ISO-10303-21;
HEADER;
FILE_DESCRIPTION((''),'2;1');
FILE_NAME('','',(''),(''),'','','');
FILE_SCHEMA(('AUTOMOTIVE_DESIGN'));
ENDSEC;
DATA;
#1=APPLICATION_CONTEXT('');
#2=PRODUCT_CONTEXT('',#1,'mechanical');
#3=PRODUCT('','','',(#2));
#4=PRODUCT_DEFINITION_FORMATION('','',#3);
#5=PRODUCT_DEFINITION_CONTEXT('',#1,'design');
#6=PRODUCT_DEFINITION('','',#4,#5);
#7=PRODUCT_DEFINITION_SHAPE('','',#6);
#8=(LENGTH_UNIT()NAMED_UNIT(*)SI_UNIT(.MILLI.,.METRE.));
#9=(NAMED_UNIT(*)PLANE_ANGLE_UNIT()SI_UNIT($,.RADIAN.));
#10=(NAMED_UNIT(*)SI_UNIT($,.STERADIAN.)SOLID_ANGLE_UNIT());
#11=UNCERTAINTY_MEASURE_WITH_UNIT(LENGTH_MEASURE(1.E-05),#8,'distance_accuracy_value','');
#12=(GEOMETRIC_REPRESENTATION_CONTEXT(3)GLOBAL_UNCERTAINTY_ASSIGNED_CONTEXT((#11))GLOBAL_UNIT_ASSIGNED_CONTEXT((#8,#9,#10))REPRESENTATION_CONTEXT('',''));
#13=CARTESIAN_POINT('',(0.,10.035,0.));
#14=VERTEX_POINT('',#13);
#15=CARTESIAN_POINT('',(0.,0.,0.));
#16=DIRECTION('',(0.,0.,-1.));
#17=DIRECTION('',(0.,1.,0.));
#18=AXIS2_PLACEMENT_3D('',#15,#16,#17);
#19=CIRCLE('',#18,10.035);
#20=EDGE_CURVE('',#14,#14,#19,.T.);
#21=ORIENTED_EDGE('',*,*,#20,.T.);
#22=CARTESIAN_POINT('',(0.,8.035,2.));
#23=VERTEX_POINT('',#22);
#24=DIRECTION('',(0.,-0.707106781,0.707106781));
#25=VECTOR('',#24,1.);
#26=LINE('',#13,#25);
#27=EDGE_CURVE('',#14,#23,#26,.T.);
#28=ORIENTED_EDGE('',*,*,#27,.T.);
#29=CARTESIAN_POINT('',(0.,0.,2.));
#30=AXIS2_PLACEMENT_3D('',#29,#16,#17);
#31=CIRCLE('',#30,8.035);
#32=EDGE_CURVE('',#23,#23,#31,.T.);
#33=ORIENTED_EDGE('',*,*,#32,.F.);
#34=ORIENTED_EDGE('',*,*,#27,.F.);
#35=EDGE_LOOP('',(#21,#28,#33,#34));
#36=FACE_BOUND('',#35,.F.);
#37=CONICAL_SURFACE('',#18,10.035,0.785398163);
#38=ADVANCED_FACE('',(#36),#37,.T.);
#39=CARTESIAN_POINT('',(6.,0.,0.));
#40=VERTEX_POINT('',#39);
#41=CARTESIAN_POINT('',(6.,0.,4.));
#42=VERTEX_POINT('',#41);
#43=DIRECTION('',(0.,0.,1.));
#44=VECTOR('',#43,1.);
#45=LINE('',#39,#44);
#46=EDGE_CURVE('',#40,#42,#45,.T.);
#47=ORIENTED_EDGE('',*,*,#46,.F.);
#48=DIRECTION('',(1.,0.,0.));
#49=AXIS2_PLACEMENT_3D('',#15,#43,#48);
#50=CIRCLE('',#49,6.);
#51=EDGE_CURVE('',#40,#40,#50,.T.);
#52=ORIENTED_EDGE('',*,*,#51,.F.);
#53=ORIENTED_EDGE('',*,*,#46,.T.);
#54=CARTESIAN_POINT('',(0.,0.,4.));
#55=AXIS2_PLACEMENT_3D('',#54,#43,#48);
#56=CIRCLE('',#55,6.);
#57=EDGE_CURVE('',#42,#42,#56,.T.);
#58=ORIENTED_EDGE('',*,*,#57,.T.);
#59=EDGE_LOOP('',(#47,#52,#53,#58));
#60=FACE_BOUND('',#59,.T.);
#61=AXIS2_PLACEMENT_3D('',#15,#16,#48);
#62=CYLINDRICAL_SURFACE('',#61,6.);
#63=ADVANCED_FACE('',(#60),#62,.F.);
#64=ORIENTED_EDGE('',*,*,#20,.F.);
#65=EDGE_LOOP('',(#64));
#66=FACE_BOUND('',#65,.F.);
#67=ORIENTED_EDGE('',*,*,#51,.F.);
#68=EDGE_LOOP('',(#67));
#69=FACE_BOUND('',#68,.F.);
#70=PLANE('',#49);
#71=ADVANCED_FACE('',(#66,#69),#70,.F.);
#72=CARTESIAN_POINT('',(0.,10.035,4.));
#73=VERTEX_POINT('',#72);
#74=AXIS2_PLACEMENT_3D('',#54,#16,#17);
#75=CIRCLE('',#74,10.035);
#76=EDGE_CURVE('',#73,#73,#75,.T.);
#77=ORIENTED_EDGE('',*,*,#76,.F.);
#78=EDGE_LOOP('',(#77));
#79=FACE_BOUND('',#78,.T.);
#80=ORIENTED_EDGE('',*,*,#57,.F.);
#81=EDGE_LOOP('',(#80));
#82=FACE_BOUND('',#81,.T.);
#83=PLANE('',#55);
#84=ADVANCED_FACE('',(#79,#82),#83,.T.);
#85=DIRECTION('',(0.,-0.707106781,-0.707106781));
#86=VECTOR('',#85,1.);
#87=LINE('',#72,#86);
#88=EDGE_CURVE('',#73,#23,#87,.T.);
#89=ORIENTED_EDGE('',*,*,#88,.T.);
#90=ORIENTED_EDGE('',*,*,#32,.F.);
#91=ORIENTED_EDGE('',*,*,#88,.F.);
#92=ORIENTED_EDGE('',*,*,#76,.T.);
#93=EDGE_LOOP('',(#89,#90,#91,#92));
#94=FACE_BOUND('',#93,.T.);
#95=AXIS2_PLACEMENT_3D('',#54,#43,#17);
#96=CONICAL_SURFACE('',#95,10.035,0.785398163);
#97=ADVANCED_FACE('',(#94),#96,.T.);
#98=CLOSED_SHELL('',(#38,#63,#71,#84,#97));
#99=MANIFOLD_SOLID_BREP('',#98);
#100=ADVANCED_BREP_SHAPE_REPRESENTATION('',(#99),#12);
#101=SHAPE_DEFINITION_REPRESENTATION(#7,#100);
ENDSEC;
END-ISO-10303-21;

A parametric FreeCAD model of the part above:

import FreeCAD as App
import Part
import Sketcher
from FreeCAD import Vector
Q = App.Units.Quantity

doc = App.newDocument("Part")
body = doc.addObject("PartDesign::Body", "Body")

sketch1 = body.newObject("Sketcher::SketchObject", "Sketch")
sketch1.AttachmentSupport = (doc.getObject("XY_Plane"), [""])
sketch1.MapMode = "FlatFace"
sketch1.addGeometry([
    Part.Circle(Vector(0, 0, 0), Vector(0, 0, 1), 8.035),
    Part.Circle(Vector(0, 0, 0), Vector(0, 0, 1), 6),
], False)
sketch1.addConstraint([
    Sketcher.Constraint("Coincident", 0, 3, -1, 1),
    Sketcher.Constraint("Coincident", 1, 3, -1, 1),
    Sketcher.Constraint("Diameter", 1, Q("12 mm")),
    Sketcher.Constraint("Diameter", 0, Q("16.07 mm")),
])
pad1 = body.newObject("PartDesign::Pad", "Pad")
pad1.Profile = sketch1
pad1.Length = 4

sketch2 = body.newObject("Sketcher::SketchObject", "Sketch001")
sketch2.AttachmentSupport = (doc.getObject("YZ_Plane"), [""])
sketch2.MapMode = "FlatFace"
sketch2.addGeometry([
    Part.LineSegment(Vector(8.035, 2, 0), Vector(8.035, 0, 0)),
    Part.LineSegment(Vector(8.035, 0, 0), Vector(10.035, 0, 0)),
    Part.LineSegment(Vector(10.035, 0, 0), Vector(8.035, 2, 0)),
    Part.LineSegment(Vector(8.035, 4, 0), Vector(8.035, 2, 0)),
    Part.LineSegment(Vector(8.035, 2, 0), Vector(10.035, 4, 0)),
    Part.LineSegment(Vector(10.035, 4, 0), Vector(8.035, 4, 0)),
], False)
sketch2.addConstraint([
    Sketcher.Constraint("Coincident", 0, 2, 1, 1),
    Sketcher.Constraint("Coincident", 1, 2, 2, 1),
    Sketcher.Constraint("Coincident", 2, 2, 0, 1),
    Sketcher.Constraint("Coincident", 3, 2, 4, 1),
    Sketcher.Constraint("Coincident", 4, 2, 5, 1),
    Sketcher.Constraint("Coincident", 5, 2, 3, 1),
    Sketcher.Constraint("Vertical", 0),
    Sketcher.Constraint("Horizontal", 1),
    Sketcher.Constraint("Vertical", 3),
    Sketcher.Constraint("Horizontal", 5),
    Sketcher.Constraint("Coincident", 3, 2, 2, 2),
    Sketcher.Constraint("PointOnObject", 0, 2, -1),
    Sketcher.Constraint("Perpendicular", 2, 4),
    Sketcher.Constraint("Vertical", 1, 2, 4, 2),
    Sketcher.Constraint("Equal", 5, 0),
    Sketcher.Constraint("DistanceX", 1, 1, 1, 2, Q("2 mm")),
    Sketcher.Constraint("DistanceX", -1, 1, 0, 2, Q("8.035 mm")),
])
revolution = body.newObject("PartDesign::Revolution", "Revolution")
revolution.Profile = sketch2
revolution.ReferenceAxis = (sketch2, ["V_Axis"])
revolution.Angle = 360

doc.recompute()
